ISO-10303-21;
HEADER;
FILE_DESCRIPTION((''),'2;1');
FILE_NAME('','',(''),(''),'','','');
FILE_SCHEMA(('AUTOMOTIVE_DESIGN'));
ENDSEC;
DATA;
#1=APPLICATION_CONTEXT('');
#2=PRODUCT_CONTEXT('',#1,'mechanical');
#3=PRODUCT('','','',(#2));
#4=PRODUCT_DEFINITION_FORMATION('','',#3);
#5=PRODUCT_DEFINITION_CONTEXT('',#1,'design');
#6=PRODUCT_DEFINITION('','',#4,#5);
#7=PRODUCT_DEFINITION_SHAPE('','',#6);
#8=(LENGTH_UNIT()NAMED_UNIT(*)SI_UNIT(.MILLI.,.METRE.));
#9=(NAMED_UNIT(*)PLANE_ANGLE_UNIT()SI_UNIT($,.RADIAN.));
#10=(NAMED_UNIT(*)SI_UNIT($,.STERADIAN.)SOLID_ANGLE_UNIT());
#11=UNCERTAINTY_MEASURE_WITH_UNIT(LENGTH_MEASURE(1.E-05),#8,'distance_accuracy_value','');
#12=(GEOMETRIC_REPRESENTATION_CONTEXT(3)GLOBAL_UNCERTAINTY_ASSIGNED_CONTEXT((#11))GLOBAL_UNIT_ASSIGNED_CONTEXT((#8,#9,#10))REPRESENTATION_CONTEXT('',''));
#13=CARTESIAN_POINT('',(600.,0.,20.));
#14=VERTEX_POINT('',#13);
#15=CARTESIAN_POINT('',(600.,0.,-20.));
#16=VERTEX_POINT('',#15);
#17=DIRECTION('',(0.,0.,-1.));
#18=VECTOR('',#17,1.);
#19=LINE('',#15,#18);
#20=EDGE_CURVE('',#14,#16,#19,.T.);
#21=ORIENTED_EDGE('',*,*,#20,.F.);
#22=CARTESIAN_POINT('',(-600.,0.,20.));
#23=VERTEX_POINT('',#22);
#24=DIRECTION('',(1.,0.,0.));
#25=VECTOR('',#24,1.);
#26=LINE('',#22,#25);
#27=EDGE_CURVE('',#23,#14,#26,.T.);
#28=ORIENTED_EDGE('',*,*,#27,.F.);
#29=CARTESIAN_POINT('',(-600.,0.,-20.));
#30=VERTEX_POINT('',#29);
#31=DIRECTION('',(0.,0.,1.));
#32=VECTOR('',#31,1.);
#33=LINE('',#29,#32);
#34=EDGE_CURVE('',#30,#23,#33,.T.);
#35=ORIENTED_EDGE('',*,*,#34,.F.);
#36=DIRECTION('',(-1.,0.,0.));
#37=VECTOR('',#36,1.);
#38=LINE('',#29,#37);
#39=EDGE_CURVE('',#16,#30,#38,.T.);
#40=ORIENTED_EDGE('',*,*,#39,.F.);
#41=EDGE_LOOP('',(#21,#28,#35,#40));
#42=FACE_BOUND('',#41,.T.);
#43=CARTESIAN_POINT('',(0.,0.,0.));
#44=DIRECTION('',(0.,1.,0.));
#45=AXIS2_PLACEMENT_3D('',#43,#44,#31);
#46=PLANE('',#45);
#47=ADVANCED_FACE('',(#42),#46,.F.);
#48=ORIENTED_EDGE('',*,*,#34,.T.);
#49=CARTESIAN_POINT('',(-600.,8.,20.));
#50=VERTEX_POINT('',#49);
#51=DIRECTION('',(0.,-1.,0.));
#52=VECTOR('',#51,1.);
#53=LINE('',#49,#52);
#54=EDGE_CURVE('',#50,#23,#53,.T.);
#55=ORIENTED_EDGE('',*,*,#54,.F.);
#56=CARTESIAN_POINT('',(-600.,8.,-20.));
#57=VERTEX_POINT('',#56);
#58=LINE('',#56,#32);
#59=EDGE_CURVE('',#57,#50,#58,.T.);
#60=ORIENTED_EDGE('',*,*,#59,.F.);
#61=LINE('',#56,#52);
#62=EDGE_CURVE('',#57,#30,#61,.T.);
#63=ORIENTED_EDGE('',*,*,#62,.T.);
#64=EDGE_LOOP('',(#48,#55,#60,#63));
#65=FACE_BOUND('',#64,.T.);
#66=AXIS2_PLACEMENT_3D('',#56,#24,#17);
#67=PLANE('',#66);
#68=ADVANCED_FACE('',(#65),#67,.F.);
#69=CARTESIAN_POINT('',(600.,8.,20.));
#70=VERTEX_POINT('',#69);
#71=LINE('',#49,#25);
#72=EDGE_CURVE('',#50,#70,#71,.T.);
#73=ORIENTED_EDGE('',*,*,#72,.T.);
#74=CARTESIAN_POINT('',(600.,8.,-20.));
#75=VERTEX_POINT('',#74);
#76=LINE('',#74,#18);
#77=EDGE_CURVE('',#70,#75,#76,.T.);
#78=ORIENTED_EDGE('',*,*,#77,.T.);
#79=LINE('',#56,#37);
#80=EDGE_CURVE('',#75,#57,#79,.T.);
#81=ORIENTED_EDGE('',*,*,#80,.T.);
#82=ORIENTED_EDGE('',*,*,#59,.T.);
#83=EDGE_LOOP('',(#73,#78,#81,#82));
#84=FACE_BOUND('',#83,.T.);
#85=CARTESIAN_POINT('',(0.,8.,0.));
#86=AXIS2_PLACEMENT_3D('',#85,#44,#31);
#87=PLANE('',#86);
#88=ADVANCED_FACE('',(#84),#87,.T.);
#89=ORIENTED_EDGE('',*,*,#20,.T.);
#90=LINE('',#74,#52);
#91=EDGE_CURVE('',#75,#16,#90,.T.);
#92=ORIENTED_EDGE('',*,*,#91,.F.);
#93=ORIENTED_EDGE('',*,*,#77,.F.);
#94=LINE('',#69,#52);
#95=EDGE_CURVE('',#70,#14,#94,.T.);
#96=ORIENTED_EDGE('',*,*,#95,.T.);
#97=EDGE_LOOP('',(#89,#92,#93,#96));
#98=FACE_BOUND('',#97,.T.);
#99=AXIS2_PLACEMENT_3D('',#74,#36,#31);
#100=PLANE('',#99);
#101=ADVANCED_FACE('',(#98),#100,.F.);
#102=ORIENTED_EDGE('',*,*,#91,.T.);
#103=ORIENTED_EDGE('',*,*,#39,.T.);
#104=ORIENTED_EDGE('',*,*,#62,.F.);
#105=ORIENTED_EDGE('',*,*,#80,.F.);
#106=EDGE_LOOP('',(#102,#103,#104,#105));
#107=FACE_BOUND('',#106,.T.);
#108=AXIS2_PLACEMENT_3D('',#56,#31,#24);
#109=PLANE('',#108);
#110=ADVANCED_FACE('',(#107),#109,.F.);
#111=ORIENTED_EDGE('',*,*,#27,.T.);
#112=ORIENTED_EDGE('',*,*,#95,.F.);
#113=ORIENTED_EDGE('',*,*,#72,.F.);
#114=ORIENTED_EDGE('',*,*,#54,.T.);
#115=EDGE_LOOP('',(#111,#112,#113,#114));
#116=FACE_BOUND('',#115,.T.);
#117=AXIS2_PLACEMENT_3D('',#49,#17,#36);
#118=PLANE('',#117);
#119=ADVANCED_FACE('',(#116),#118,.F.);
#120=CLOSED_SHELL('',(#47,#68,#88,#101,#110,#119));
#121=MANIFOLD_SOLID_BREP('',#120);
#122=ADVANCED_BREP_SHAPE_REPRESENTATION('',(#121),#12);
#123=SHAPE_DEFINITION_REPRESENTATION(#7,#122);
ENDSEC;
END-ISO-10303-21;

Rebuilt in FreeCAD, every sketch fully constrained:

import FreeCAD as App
import Part
import Sketcher
from FreeCAD import Vector

doc = App.newDocument("Part")
params = doc.addObject("Spreadsheet::Sheet", "Params")
for row, (alias, value) in enumerate([
    ("sketch1_width", "1200 mm"),
    ("sketch1_height", "40 mm"),
    ("pad1_length", "8 mm"),
], start=1):
    params.set(f"A{row}", alias)
    params.set(f"B{row}", "=" + value)
    params.setAlias(f"B{row}", alias)

body = doc.addObject("PartDesign::Body", "Body")

# Sketch on XZ plane
sketch1 = body.newObject("Sketcher::SketchObject", "Sketch")
sketch1.AttachmentSupport = (doc.getObject("XZ_Plane"), [""])
sketch1.MapMode = "FlatFace"
sketch1.addGeometry(Part.LineSegment(Vector(-600, -20, 0), Vector(-600, 20, 0)), False)
sketch1.addGeometry(Part.LineSegment(Vector(-600, 20, 0), Vector(600, 20, 0)), False)
sketch1.addGeometry(Part.LineSegment(Vector(600, 20, 0), Vector(600, -20, 0)), False)
sketch1.addGeometry(Part.LineSegment(Vector(600, -20, 0), Vector(-600, -20, 0)), False)
sketch1.addConstraint(Sketcher.Constraint("Coincident", 0, 2, 1, 1))
sketch1.addConstraint(Sketcher.Constraint("Coincident", 1, 2, 2, 1))
sketch1.addConstraint(Sketcher.Constraint("Coincident", 2, 2, 3, 1))
sketch1.addConstraint(Sketcher.Constraint("Coincident", 3, 2, 0, 1))
sketch1.addConstraint(Sketcher.Constraint("Vertical", 0))
sketch1.addConstraint(Sketcher.Constraint("Horizontal", 1))
sketch1.addConstraint(Sketcher.Constraint("Vertical", 2))
sketch1.addConstraint(Sketcher.Constraint("Horizontal", 3))
sketch1.addConstraint(Sketcher.Constraint("Symmetric", 0, 2, 2, 2, -1, 1))
sketch1.addConstraint(Sketcher.Constraint("DistanceX", 1, 1, 1, 2, 1200.0))
sketch1.addConstraint(Sketcher.Constraint("DistanceY", 0, 1, 0, 2, 40.0))
sketch1.setExpression("Constraints[9]", "Params.sketch1_width")
sketch1.setExpression("Constraints[10]", "Params.sketch1_height")
pad1 = body.newObject("PartDesign::Pad", "Pad")
pad1.Profile = sketch1
pad1.setExpression("Length", "Params.pad1_length")
pad1.Reversed = True

doc.recompute()
